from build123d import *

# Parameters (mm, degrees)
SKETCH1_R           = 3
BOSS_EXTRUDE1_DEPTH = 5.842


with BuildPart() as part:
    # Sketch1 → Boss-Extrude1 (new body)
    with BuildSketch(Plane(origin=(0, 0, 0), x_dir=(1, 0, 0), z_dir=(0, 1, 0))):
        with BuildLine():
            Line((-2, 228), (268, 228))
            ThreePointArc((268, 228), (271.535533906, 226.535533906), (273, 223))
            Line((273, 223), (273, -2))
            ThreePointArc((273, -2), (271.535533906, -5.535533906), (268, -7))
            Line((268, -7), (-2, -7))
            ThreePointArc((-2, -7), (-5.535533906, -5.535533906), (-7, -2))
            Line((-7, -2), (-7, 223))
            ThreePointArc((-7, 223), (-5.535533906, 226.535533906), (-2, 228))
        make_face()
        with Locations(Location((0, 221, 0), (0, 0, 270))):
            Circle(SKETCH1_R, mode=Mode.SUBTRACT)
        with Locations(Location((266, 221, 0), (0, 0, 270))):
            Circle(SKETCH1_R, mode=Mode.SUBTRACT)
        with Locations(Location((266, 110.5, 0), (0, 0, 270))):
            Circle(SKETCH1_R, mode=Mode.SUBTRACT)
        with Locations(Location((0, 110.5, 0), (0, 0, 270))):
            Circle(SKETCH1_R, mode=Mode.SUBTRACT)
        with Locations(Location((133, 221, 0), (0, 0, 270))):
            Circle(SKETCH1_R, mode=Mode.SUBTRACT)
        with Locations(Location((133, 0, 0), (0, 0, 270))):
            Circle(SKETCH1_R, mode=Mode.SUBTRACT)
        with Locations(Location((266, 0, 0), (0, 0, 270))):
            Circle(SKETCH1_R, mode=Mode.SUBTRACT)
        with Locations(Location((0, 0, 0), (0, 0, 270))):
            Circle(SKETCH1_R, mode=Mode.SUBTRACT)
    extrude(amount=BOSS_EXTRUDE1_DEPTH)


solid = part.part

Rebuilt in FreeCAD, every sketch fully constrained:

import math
import FreeCAD as App
import Part
import Sketcher
Q = App.Units.Quantity

doc = App.newDocument("Part")
params = doc.addObject("Spreadsheet::Sheet", "Params")
for row, (alias, value) in enumerate([
    ("sketch1_diameter", "6 mm"),
    ("sketch1_radius", "5 mm"),
    ("sketch1_width", "270 mm"),
    ("sketch1_height", "225 mm"),
    ("pad1_length", "5.842 mm"),
], start=1):
    params.set(f"A{row}", alias)
    params.set(f"B{row}", "=" + value)
    params.setAlias(f"B{row}", alias)

body = doc.addObject("PartDesign::Body", "Body")

sketch1 = body.newObject("Sketcher::SketchObject", "Sketch")
sketch1.AttachmentSupport = (doc.getObject("XZ_Plane"), [""])
sketch1.MapMode = "FlatFace"
sketch1.addGeometry([
    Part.LineSegment(App.Vector(268, -228, 0), App.Vector(-2, -228, 0)),
    Part.ArcOfCircle(Part.Circle(App.Vector(-2, -223, 0), App.Vector(0, 0, 1), 5), math.radians(180), math.radians(270)),
    Part.LineSegment(App.Vector(-7, -223, 0), App.Vector(-7, 2, 0)),
    Part.ArcOfCircle(Part.Circle(App.Vector(-2, 2, 0), App.Vector(0, 0, 1), 5), math.radians(90), math.radians(180)),
    Part.LineSegment(App.Vector(-2, 7, 0), App.Vector(268, 7, 0)),
    Part.ArcOfCircle(Part.Circle(App.Vector(268, 2, 0), App.Vector(0, 0, 1), 5), math.radians(0), math.radians(90)),
    Part.LineSegment(App.Vector(273, 2, 0), App.Vector(273, -223, 0)),
    Part.ArcOfCircle(Part.Circle(App.Vector(268, -223, 0), App.Vector(0, 0, 1), 5), math.radians(-90), math.radians(0)),
    Part.Circle(App.Vector(266, 0, 0), App.Vector(0, 0, 1), 3),
    Part.Circle(App.Vector(133, 0, 0), App.Vector(0, 0, 1), 3),
    Part.Circle(App.Vector(0, 0, 0), App.Vector(0, 0, 1), 3),
    Part.Circle(App.Vector(266, -110.5, 0), App.Vector(0, 0, 1), 3),
    Part.Circle(App.Vector(266, -221, 0), App.Vector(0, 0, 1), 3),
    Part.Circle(App.Vector(0, -110.5, 0), App.Vector(0, 0, 1), 3),
    Part.Circle(App.Vector(133, -221, 0), App.Vector(0, 0, 1), 3),
    Part.Circle(App.Vector(0, -221, 0), App.Vector(0, 0, 1), 3),
], False)
sketch1.addConstraint([
    Sketcher.Constraint("Tangent", 0, 2, 1, 2),
    Sketcher.Constraint("Tangent", 1, 1, 2, 1),
    Sketcher.Constraint("Tangent", 2, 2, 3, 2),
    Sketcher.Constraint("Tangent", 3, 1, 4, 1),
    Sketcher.Constraint("Tangent", 4, 2, 5, 2),
    Sketcher.Constraint("Tangent", 5, 1, 6, 1),
    Sketcher.Constraint("Tangent", 6, 2, 7, 2),
    Sketcher.Constraint("Tangent", 7, 1, 0, 1),
    Sketcher.Constraint("Horizontal", 0),
    Sketcher.Constraint("Vertical", 2),
    Sketcher.Constraint("Horizontal", 4),
    Sketcher.Constraint("Vertical", 6),
    Sketcher.Constraint("Coincident", 10, 3, -1, 1),
    Sketcher.Constraint("Equal", 1, 3),
    Sketcher.Constraint("Equal", 3, 5),
    Sketcher.Constraint("Equal", 5, 7),
    Sketcher.Constraint("Equal", 8, 9),
    Sketcher.Constraint("Equal", 9, 10),
    Sketcher.Constraint("Equal", 10, 11),
    Sketcher.Constraint("Equal", 11, 12),
    Sketcher.Constraint("Equal", 12, 13),
    Sketcher.Constraint("Equal", 13, 14),
    Sketcher.Constraint("Equal", 14, 15),
    Sketcher.Constraint("PointOnObject", 8, 3, -1),
    Sketcher.Constraint("PointOnObject", 9, 3, -1),
    Sketcher.Constraint("PointOnObject", 13, 3, -2),
    Sketcher.Constraint("PointOnObject", 15, 3, -2),
    Sketcher.Constraint("Horizontal", 11, 3, 13, 3),
    Sketcher.Constraint("Horizontal", 12, 3, 14, 3),
    Sketcher.Constraint("Horizontal", 14, 3, 15, 3),
    Sketcher.Constraint("Vertical", 8, 3, 11, 3),
    Sketcher.Constraint("Vertical", 11, 3, 12, 3),
    Sketcher.Constraint("Vertical", 9, 3, 14, 3),
    Sketcher.Constraint("Diameter", 8, Q("6 mm")),
    Sketcher.Constraint("Radius", 1, Q("5 mm")),
    Sketcher.Constraint("DistanceX", 0, 2, 0, 1, Q("270 mm")),
    Sketcher.Constraint("DistanceY", 2, 1, 2, 2, Q("225 mm")),
    Sketcher.Constraint("DistanceX", 1, 3, -1, 1, Q("2 mm")),
    Sketcher.Constraint("DistanceY", 1, 3, -1, 1, Q("223 mm")),
    Sketcher.Constraint("DistanceX", -1, 1, 8, 3, Q("266 mm")),
    Sketcher.Constraint("DistanceX", -1, 1, 9, 3, Q("133 mm")),
    Sketcher.Constraint("DistanceY", 12, 3, -1, 1, Q("221 mm")),
    Sketcher.Constraint("DistanceY", 11, 3, -1, 1, Q("110.5 mm")),
])
sketch1.setExpression("Constraints[33]", "Params.sketch1_diameter")
sketch1.setExpression("Constraints[34]", "Params.sketch1_radius")
sketch1.setExpression("Constraints[35]", "Params.sketch1_width")
sketch1.setExpression("Constraints[36]", "Params.sketch1_height")
pad1 = body.newObject("PartDesign::Pad", "Pad")
pad1.Profile = sketch1
pad1.setExpression("Length", "Params.pad1_length")
pad1.Reversed = True

doc.recompute()
